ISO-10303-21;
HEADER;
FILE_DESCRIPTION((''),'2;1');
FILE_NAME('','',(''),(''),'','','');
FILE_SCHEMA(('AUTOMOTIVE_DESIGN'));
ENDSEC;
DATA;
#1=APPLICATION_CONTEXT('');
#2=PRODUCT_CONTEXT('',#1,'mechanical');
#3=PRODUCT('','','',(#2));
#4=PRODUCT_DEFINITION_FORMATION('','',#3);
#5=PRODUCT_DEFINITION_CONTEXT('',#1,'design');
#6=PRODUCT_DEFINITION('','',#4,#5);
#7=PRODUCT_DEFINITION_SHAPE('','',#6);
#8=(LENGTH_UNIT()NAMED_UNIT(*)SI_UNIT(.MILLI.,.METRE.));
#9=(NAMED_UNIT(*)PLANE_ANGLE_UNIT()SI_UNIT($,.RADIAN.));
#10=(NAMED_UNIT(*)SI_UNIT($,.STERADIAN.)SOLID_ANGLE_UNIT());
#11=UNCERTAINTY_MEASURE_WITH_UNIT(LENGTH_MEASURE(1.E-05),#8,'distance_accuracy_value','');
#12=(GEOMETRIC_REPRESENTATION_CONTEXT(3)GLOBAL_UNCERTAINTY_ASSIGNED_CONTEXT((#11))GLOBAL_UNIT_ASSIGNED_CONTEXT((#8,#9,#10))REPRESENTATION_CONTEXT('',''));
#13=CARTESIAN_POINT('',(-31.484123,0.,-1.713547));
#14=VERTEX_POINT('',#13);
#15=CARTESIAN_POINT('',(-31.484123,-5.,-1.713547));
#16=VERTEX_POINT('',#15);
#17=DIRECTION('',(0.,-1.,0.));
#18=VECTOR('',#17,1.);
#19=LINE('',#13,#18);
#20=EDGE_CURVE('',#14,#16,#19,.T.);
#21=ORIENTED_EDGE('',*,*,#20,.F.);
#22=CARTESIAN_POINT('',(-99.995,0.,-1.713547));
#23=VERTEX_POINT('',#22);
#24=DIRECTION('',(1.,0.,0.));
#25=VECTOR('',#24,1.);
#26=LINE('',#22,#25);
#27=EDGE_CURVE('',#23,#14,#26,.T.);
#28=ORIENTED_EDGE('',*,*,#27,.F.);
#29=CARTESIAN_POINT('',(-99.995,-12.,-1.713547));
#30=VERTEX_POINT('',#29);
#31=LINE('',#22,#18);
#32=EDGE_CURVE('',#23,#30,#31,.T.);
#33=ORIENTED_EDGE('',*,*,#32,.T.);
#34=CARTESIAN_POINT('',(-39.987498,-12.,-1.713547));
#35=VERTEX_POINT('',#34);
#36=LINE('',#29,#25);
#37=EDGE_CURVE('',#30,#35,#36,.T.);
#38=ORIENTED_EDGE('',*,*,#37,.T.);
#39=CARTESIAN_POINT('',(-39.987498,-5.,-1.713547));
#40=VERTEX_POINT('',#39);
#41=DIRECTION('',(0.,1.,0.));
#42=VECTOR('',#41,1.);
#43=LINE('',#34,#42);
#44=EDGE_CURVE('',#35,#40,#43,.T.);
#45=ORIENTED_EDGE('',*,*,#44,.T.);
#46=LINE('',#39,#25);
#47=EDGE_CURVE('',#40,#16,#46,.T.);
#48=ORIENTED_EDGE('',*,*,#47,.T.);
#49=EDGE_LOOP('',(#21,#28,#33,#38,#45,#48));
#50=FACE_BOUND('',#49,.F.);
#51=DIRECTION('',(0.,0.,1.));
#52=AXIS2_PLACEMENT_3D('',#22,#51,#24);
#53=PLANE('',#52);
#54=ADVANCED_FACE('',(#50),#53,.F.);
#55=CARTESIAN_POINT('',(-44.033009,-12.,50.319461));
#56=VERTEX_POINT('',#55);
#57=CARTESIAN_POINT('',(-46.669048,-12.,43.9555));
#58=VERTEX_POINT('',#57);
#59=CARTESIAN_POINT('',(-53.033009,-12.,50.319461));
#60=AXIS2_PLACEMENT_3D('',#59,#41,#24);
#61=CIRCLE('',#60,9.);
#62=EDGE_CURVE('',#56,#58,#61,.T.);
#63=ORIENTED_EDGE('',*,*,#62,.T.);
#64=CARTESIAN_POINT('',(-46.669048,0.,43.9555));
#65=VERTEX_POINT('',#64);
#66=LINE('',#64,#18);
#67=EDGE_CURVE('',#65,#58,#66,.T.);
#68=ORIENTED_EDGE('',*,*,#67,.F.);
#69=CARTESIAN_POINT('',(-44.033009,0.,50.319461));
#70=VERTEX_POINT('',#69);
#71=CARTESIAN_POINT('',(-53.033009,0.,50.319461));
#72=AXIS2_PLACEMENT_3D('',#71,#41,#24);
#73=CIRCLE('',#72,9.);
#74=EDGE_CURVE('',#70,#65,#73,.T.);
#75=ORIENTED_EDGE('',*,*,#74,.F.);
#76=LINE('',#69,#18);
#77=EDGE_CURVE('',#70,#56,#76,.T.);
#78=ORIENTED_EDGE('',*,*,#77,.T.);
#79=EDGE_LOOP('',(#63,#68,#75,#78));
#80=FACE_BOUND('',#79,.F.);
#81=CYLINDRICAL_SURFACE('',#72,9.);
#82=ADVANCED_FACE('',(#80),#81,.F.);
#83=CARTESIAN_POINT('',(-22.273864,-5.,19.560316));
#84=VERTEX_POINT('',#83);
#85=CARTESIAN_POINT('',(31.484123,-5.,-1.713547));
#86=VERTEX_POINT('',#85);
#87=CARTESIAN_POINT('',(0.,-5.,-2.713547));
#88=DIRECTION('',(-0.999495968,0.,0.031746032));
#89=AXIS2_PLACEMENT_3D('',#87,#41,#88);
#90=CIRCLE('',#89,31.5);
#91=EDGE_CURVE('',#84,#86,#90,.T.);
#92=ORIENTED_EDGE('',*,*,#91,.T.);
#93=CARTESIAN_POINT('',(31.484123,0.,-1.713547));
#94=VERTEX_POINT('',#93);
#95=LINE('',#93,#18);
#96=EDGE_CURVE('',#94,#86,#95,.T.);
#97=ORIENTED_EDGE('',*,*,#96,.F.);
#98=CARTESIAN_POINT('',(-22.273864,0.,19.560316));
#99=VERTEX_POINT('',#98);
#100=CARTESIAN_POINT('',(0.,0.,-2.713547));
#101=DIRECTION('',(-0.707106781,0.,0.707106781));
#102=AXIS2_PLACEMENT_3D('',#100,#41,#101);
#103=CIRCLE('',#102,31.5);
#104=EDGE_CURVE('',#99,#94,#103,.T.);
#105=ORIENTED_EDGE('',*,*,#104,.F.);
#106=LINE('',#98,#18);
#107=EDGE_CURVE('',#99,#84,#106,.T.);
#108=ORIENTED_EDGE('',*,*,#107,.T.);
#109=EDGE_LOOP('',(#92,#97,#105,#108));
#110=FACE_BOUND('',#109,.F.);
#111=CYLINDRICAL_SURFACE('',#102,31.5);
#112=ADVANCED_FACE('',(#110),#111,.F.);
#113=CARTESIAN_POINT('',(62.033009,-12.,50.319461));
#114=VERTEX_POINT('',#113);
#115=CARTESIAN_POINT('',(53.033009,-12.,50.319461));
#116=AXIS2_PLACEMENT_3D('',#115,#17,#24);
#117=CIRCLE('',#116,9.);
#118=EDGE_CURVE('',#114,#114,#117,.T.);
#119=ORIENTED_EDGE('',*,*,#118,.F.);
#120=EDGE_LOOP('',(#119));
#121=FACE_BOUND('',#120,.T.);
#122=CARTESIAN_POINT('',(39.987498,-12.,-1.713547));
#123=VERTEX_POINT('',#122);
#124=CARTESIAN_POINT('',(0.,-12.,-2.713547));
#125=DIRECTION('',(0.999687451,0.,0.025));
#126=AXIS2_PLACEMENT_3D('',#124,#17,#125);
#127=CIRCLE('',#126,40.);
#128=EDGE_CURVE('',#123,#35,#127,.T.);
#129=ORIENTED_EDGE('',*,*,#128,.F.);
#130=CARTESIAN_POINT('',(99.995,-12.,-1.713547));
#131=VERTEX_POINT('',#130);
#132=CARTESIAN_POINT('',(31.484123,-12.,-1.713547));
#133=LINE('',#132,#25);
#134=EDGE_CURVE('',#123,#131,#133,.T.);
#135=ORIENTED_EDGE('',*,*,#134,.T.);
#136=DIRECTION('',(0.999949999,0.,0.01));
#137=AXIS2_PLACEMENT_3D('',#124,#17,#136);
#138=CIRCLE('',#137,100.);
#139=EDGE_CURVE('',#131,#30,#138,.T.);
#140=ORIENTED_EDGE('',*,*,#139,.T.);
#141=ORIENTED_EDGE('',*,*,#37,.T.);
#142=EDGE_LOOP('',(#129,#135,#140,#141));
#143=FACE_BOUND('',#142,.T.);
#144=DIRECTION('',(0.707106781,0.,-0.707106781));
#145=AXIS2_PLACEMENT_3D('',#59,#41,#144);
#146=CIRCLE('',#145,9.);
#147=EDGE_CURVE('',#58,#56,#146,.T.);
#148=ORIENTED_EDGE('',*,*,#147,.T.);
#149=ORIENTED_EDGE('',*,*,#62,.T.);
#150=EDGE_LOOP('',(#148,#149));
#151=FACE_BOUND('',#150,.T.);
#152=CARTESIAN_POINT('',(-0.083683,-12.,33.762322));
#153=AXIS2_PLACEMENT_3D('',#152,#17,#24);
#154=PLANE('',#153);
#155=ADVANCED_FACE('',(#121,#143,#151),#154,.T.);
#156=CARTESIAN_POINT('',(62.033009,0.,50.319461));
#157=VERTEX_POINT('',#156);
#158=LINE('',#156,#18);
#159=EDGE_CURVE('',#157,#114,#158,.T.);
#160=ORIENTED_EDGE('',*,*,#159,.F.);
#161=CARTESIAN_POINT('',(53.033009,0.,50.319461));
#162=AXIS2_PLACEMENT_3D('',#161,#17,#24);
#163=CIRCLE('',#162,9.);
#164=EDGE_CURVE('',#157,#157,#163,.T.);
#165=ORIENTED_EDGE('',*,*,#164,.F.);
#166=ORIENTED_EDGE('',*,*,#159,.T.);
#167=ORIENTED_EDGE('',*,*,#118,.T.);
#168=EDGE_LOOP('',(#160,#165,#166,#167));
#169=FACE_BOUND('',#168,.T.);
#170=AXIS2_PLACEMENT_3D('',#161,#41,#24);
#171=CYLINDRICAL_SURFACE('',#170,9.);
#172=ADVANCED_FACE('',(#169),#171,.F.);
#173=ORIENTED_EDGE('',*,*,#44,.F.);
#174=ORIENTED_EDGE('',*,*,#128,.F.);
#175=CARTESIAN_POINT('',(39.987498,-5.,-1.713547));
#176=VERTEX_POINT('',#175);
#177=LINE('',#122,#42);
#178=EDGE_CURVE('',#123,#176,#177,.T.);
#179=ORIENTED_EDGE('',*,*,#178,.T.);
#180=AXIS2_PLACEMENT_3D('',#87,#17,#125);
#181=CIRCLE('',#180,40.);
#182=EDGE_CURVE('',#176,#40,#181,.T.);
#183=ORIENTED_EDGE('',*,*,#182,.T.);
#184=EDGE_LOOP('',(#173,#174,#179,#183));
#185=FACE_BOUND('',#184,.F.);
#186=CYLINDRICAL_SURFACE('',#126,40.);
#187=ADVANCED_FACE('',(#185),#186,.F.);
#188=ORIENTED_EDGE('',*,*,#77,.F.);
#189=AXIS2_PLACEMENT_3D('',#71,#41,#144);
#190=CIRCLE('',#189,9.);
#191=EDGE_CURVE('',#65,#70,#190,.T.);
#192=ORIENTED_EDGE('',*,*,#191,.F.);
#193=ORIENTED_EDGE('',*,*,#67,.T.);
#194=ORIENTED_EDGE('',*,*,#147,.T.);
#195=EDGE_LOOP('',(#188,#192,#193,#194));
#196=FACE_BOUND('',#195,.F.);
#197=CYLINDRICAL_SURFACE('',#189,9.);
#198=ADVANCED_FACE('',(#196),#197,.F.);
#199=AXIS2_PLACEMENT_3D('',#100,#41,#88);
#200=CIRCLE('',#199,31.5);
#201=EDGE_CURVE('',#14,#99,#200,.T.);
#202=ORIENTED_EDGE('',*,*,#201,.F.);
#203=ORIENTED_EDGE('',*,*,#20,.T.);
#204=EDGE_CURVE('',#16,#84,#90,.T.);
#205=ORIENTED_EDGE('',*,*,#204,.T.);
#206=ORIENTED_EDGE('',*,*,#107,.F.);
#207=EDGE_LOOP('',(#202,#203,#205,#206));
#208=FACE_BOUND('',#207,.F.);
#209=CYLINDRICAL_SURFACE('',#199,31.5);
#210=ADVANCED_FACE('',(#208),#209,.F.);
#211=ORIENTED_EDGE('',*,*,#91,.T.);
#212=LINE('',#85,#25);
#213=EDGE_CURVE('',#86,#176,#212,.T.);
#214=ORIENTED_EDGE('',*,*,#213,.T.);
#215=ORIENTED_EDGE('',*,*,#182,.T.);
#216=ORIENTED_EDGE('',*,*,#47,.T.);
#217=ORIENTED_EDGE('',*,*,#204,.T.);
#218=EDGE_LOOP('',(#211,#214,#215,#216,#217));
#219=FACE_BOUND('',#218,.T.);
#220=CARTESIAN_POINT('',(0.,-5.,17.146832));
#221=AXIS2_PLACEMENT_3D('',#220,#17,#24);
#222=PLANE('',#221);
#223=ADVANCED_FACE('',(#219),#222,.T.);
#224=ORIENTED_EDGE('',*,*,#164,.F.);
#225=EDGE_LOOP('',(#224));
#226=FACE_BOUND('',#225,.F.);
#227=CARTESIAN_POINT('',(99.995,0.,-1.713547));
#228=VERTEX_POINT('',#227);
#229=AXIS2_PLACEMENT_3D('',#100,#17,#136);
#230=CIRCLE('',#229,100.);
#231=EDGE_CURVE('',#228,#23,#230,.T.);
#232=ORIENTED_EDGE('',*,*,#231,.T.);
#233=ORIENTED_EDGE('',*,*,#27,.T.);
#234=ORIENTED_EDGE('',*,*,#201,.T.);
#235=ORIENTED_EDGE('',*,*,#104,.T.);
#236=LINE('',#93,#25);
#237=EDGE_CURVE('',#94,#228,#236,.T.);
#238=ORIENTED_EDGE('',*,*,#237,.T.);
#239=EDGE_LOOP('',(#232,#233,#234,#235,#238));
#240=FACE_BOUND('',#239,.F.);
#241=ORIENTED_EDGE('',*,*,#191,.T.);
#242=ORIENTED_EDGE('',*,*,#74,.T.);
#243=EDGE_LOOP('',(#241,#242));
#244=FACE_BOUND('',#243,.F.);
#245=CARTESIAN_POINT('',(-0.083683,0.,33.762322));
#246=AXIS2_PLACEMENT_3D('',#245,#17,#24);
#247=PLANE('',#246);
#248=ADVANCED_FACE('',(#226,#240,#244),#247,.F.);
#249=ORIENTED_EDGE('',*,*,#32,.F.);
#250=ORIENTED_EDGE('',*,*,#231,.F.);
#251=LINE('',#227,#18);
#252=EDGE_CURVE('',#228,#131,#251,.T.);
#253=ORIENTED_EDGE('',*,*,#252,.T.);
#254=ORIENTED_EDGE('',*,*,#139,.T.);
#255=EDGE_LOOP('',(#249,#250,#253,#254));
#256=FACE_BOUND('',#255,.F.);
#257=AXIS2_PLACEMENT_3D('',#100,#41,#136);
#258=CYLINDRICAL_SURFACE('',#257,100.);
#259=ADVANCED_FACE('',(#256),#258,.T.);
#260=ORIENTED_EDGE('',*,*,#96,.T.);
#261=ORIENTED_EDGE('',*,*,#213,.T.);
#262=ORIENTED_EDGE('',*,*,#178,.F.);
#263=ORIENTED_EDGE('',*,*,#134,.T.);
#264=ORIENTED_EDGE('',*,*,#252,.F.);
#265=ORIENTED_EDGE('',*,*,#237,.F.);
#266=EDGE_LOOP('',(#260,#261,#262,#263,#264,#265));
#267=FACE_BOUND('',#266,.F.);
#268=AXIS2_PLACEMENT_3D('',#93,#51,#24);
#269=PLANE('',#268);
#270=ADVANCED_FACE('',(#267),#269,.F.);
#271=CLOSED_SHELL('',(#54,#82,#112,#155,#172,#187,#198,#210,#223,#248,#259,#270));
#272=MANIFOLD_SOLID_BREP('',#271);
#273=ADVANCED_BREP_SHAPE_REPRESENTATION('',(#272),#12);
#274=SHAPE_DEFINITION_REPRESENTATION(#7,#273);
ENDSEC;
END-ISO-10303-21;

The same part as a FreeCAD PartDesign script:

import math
import FreeCAD as App
import Part
import Sketcher

doc = App.newDocument("Part")
body = doc.addObject("PartDesign::Body", "Body")

# Sketch on XZ plane
sketch1 = body.newObject("Sketcher::SketchObject", "Sketch")
sketch1.AttachmentSupport = (doc.getObject("XZ_Plane"), [""])
sketch1.MapMode = "FlatFace"
sketch1.addGeometry([
    Part.ArcOfCircle(Part.Circle(App.Vector(0, -3, 0), App.Vector(0, 0, 1), 100), math.radians(1), math.radians(179)),  # 0
    Part.LineSegment(App.Vector(-100, -2, 0), App.Vector(-31, -2, 0)),  # 1
    Part.ArcOfCircle(Part.Circle(App.Vector(0, -3, 0), App.Vector(0, 0, 1), 32), math.radians(135), math.radians(178)),  # 2
    Part.ArcOfCircle(Part.Circle(App.Vector(0, -3, 0), App.Vector(0, 0, 1), 32), math.radians(2), math.radians(135)),  # 3
    Part.LineSegment(App.Vector(31, -2, 0), App.Vector(100, -2, 0)),  # 4
    Part.ArcOfCircle(Part.Circle(App.Vector(-53, 50, 0), App.Vector(0, 0, 1), 9), math.radians(0), math.radians(315)),  # 5
    Part.ArcOfCircle(Part.Circle(App.Vector(-53, 50, 0), App.Vector(0, 0, 1), 9), math.radians(-45), math.radians(0)),  # 6
    Part.Circle(App.Vector(53, 50, 0), App.Vector(0, 0, 1), 9),  # 7
], False)
sketch1.addConstraint([
    Sketcher.Constraint("Coincident", 0, 2, 1, 1),
    Sketcher.Constraint("Coincident", 1, 2, 2, 2),
    Sketcher.Constraint("Tangent", 2, 1, 3, 2),
    Sketcher.Constraint("Coincident", 3, 1, 4, 1),
    Sketcher.Constraint("Coincident", 4, 2, 0, 1),
    Sketcher.Constraint("Tangent", 5, 1, 6, 2),
    Sketcher.Constraint("Coincident", 6, 1, 5, 2),
    Sketcher.Constraint("Horizontal", 1),
    Sketcher.Constraint("Horizontal", 4),
    Sketcher.Constraint("Coincident", 2, 3, 0, 3),
    Sketcher.Constraint("Equal", 2, 3),
    Sketcher.Constraint("Equal", 6, 7),
    Sketcher.Constraint("Symmetric", 5, 3, 7, 3, -2),
    Sketcher.Constraint("Symmetric", 1, 2, 3, 1, -2),
    Sketcher.Constraint("Horizontal", 7, 3, 5, 1),
    Sketcher.Constraint("Diameter", 7, 18.0),
    Sketcher.Constraint("Radius", 0, 100.0),
    Sketcher.Constraint("Radius", 2, 31.5),
    Sketcher.Constraint("DistanceY", 0, 3, 0, 2, 1.0),
    Sketcher.Constraint("DistanceY", -1, 1, 6, 1, 43.9555),
    Sketcher.Constraint("DistanceX", 5, 3, -1, 1, 53.033009),
    Sketcher.Constraint("DistanceY", -1, 1, 5, 3, 50.319461),
    Sketcher.Constraint("DistanceY", 0, 3, 5, 3, 53.033009),
    Sketcher.Constraint("DistanceX", 1, 2, 2, 1, 9.210259),
])
pad1 = body.newObject("PartDesign::Pad", "Pad")
pad1.Profile = sketch1
pad1.Length = 12

# Sketch on XZ plane
sketch2 = body.newObject("Sketcher::SketchObject", "Sketch001")
sketch2.AttachmentSupport = (doc.getObject("XZ_Plane"), [""])
sketch2.MapMode = "FlatFace"
sketch2.AttachmentOffset = App.Placement(App.Vector(0, 0, 12), App.Rotation())
sketch2.addGeometry([
    Part.LineSegment(App.Vector(31, -2, 0), App.Vector(40, -2, 0)),
    Part.ArcOfCircle(Part.Circle(App.Vector(0, -3, 0), App.Vector(0, 0, 1), 40), math.radians(1), math.radians(179)),
    Part.LineSegment(App.Vector(-40, -2, 0), App.Vector(-31, -2, 0)),
    Part.ArcOfCircle(Part.Circle(App.Vector(0, -3, 0), App.Vector(0, 0, 1), 32), math.radians(2), math.radians(178)),
], False)
sketch2.addConstraint([
    Sketcher.Constraint("Coincident", 0, 2, 1, 1),
    Sketcher.Constraint("Coincident", 1, 2, 2, 1),
    Sketcher.Constraint("Coincident", 2, 2, 3, 2),
    Sketcher.Constraint("Coincident", 3, 1, 0, 1),
    Sketcher.Constraint("Horizontal", 0),
    Sketcher.Constraint("Horizontal", 2),
    Sketcher.Constraint("Coincident", 3, 3, 1, 3),
    Sketcher.Constraint("Symmetric", 0, 2, 1, 2, -2),
    Sketcher.Constraint("Radius", 1, 40.0),
    Sketcher.Constraint("Radius", 3, 31.5),
    Sketcher.Constraint("DistanceY", 1, 3, 0, 2, 1.0),
    Sketcher.Constraint("DistanceY", 1, 3, -1, 1, 2.713547),
])
pocket1 = body.newObject("PartDesign::Pocket", "Pocket")
pocket1.Profile = sketch2
pocket1.Length = 7

doc.recompute()
